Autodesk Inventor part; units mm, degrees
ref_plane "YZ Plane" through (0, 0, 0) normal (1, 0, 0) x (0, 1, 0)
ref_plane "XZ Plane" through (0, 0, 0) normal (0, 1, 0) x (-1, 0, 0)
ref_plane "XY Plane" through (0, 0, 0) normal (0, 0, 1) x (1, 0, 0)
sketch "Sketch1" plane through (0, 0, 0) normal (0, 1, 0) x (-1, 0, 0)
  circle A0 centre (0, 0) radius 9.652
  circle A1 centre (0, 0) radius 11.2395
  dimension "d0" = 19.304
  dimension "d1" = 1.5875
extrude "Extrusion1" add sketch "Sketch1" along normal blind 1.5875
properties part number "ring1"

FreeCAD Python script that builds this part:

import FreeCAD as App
import Part
import Sketcher
from FreeCAD import Vector
Q = App.Units.Quantity

doc = App.newDocument("Part")
params = doc.addObject("Spreadsheet::Sheet", "Params")
for row, (alias, value) in enumerate([
    ("sketch1_diameter", "0.76 in"),
    ("sketch1_diameter2", "0.885 in"),
    ("pad1_length", "0.0625 in"),
], start=1):
    params.set(f"A{row}", alias)
    params.set(f"B{row}", "=" + value)
    params.setAlias(f"B{row}", alias)

body = doc.addObject("PartDesign::Body", "Body")

# Sketch on XZ plane
sketch1 = body.newObject("Sketcher::SketchObject", "Sketch")
sketch1.AttachmentSupport = (doc.getObject("XZ_Plane"), [""])
sketch1.MapMode = "FlatFace"
sketch1.addGeometry([
    Part.Circle(Vector(0, 0, 0), Vector(0, 0, 1), 11),
    Part.Circle(Vector(0, 0, 0), Vector(0, 0, 1), 10),
], False)
sketch1.addConstraint([
    Sketcher.Constraint("Coincident", 0, 3, -1, 1),
    Sketcher.Constraint("Coincident", 1, 3, -1, 1),
    Sketcher.Constraint("Diameter", 1, Q("0.76 in")),
    Sketcher.Constraint("Diameter", 0, Q("0.885 in")),
])
sketch1.setExpression("Constraints[2]", "Params.sketch1_diameter")
sketch1.setExpression("Constraints[3]", "Params.sketch1_diameter2")
pad1 = body.newObject("PartDesign::Pad", "Pad")
pad1.Profile = sketch1
pad1.setExpression("Length", "Params.pad1_length")
pad1.Reversed = True

doc.recompute()
